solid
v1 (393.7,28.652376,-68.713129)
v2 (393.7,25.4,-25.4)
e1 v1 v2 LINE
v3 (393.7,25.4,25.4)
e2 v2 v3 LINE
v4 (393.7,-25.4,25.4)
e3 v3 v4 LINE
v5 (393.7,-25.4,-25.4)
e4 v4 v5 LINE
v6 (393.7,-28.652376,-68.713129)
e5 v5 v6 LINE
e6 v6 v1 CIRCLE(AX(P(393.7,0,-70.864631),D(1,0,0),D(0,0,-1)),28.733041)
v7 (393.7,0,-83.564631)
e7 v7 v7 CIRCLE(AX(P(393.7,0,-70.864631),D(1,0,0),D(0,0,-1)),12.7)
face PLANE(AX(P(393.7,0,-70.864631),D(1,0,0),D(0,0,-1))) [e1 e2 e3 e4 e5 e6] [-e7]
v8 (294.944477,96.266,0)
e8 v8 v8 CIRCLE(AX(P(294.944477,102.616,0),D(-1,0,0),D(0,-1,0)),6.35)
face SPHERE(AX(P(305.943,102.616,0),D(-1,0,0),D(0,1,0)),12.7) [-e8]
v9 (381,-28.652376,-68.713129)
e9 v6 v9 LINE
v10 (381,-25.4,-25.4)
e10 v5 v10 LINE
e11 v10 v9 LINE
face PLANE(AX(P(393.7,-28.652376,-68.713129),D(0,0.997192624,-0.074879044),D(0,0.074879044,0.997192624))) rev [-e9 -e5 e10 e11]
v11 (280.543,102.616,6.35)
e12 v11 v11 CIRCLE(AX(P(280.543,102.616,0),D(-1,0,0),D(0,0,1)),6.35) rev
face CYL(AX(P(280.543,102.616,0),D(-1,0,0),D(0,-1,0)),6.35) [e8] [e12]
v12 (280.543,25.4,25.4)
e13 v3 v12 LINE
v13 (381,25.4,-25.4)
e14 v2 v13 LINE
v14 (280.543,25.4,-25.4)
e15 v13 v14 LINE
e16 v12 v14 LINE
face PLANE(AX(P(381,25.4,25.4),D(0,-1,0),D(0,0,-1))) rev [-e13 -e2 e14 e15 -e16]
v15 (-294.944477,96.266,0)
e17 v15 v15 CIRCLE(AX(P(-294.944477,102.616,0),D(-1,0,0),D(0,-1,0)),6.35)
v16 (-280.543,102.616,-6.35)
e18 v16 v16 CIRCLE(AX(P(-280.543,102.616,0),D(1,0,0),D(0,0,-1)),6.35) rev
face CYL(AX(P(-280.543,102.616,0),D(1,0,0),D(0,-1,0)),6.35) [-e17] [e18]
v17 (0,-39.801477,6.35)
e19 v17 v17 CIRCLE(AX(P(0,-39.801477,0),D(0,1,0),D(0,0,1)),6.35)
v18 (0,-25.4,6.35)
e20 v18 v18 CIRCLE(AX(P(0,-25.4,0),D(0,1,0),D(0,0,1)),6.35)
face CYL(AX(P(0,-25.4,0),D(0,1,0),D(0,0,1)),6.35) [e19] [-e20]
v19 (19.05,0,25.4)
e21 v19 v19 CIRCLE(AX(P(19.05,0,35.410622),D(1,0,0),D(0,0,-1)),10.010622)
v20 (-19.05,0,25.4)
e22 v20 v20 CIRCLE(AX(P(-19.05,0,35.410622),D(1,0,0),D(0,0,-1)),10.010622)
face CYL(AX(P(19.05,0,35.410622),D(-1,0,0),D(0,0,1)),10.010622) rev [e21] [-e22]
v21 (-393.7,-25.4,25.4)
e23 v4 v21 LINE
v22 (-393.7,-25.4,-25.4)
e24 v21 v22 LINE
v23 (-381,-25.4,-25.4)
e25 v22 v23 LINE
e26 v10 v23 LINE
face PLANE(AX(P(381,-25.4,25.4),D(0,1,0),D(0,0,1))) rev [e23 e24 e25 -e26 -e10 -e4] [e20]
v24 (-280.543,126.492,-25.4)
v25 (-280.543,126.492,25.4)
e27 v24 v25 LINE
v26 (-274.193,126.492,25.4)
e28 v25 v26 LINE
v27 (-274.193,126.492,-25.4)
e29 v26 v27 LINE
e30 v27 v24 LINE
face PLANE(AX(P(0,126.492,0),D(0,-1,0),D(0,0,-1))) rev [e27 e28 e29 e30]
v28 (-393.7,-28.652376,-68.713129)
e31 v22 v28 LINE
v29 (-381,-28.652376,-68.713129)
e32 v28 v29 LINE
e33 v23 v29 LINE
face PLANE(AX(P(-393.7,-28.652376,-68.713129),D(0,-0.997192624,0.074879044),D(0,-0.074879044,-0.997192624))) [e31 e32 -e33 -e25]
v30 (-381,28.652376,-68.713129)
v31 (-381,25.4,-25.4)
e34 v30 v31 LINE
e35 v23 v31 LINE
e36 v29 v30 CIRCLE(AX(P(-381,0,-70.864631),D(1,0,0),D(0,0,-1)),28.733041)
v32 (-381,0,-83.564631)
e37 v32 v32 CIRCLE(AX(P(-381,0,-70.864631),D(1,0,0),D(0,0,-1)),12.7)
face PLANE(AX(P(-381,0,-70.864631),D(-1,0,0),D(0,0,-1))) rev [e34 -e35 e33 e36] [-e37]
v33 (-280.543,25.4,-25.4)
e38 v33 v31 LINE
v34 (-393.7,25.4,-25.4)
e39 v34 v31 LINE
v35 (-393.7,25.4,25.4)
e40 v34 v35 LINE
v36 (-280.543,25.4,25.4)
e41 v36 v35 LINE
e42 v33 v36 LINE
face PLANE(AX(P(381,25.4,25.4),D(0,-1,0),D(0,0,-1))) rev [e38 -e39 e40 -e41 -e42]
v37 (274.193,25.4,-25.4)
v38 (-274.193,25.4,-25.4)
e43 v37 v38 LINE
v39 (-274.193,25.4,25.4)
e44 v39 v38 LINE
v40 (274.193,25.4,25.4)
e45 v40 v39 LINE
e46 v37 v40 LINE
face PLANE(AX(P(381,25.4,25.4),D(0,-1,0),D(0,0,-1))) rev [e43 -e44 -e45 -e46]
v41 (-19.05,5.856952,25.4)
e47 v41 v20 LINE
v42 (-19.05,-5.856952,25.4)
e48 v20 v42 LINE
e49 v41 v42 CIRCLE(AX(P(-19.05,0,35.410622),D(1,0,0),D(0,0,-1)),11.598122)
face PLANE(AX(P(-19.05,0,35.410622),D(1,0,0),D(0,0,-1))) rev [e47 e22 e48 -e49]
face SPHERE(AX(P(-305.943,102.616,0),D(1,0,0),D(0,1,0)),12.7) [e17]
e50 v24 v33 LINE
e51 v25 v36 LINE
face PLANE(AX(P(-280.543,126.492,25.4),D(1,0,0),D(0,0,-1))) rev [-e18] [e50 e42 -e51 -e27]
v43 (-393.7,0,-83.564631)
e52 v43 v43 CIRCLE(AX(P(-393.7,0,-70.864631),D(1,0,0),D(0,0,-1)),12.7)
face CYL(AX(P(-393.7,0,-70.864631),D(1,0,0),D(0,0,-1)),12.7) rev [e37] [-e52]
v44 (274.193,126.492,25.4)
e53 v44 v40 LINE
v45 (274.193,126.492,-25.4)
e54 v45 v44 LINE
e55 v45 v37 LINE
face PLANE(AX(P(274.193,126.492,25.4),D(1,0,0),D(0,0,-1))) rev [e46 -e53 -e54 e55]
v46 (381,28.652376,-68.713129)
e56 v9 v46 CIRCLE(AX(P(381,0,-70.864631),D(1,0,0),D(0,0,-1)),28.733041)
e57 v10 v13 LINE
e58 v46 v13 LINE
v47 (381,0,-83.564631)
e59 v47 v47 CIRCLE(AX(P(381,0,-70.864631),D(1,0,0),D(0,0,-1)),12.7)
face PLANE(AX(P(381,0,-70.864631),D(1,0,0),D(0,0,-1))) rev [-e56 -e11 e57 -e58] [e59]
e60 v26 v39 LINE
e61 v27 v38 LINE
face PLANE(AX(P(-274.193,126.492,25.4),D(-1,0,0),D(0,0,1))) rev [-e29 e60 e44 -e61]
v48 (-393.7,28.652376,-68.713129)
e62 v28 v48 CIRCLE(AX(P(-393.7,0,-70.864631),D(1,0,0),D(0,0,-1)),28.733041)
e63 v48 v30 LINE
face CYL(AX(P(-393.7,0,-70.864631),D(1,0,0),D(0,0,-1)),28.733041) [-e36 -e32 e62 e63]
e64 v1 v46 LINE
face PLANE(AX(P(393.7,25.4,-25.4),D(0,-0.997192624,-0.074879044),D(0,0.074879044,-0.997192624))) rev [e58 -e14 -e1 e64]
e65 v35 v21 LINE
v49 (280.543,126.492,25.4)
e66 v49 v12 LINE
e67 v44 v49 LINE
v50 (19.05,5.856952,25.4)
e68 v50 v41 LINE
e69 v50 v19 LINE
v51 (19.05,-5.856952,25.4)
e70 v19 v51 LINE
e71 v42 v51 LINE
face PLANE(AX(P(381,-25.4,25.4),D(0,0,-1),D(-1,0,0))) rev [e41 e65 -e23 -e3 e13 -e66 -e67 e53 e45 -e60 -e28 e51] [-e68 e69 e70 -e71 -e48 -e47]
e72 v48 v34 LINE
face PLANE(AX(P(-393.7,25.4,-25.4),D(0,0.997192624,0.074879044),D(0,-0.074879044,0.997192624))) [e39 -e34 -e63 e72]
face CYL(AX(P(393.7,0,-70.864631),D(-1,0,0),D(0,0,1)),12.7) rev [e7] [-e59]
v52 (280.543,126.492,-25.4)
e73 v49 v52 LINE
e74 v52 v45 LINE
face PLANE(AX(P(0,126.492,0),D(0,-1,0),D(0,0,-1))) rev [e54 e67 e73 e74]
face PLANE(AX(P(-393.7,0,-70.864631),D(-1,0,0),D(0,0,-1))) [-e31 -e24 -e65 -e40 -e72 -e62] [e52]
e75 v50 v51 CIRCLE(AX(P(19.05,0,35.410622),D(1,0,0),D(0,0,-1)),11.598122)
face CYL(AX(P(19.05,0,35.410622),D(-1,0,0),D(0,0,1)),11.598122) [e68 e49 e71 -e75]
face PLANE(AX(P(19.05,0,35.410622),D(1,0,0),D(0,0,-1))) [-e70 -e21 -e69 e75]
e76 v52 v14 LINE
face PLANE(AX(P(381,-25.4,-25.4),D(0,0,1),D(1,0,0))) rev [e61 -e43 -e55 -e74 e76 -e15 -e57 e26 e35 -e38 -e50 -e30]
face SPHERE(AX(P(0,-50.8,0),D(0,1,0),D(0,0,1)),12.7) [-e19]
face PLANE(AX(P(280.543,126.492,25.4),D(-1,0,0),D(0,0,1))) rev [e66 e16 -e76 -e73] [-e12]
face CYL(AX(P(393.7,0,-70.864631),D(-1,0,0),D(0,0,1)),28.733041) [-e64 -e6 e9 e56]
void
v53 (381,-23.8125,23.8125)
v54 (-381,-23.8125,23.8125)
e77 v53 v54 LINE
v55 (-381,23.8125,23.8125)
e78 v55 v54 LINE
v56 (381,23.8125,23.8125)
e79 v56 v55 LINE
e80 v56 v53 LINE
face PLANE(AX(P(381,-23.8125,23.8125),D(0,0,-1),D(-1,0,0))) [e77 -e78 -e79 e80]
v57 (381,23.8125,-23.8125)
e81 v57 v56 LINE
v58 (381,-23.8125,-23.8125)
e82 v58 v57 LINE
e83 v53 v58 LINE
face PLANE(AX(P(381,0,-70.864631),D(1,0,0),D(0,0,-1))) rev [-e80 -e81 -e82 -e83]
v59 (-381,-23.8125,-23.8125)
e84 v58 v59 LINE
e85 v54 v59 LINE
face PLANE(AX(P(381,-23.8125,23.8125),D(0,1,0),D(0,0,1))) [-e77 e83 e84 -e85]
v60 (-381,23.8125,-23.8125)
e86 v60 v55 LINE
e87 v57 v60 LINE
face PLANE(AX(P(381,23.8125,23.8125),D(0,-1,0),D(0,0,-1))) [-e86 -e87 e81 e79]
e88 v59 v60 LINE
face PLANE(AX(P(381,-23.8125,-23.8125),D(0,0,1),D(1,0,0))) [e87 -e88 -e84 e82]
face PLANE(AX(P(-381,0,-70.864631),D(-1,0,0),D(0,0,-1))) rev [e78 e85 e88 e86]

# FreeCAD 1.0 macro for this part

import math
import FreeCAD as App
import Part
import Sketcher
from FreeCAD import Vector
Q = App.Units.Quantity

doc = App.newDocument("Part")
params = doc.addObject("Spreadsheet::Sheet", "Params")
for row, (alias, value) in enumerate([
    ("sketch1_width", "2 in"),
    ("sketch1_width2", "1.875 in"),
    ("pad1_length", "30 in"),
    ("pad2_length", "1.5 in"),
    ("sketch3_height", "2 in"),
    ("sketch3_width", "0.25 in"),
    ("pad3_length", "3.98 in"),
    ("sketch4_radius", "0.5 in"),
    ("sketch4_width", "1.5 in"),
    ("sketch4_height", "0.25 in"),
    ("revolution_angle", "360 deg"),
    ("sketch5_radius", "0.5 in"),
    ("sketch5_width", "1.5 in"),
    ("sketch5_height", "0.25 in"),
    ("revolution2_angle", "360 deg"),
    ("sketch6_diameter", "1 in"),
    ("sketch6_width", "2 in"),
    ("pad4_length", "0.5 in"),
], start=1):
    params.set(f"A{row}", alias)
    params.set(f"B{row}", "=" + value)
    params.setAlias(f"B{row}", alias)

body = doc.addObject("PartDesign::Body", "Body")

# Sketch on YZ plane
sketch1 = body.newObject("Sketcher::SketchObject", "Sketch")
sketch1.AttachmentSupport = (doc.getObject("YZ_Plane"), [""])
sketch1.MapMode = "FlatFace"
sketch1.addGeometry(Part.LineSegment(Vector(25, 25, 0), Vector(-25, 25, 0)), False)
sketch1.addGeometry(Part.LineSegment(Vector(-25, 25, 0), Vector(-25, -25, 0)), False)
sketch1.addGeometry(Part.LineSegment(Vector(-25, -25, 0), Vector(25, -25, 0)), False)
sketch1.addGeometry(Part.LineSegment(Vector(25, -25, 0), Vector(25, 25, 0)), False)
sketch1.addGeometry(Part.LineSegment(Vector(-24, -24, 0), Vector(-24, 24, 0)), False)
sketch1.addGeometry(Part.LineSegment(Vector(-24, 24, 0), Vector(24, 24, 0)), False)
sketch1.addGeometry(Part.LineSegment(Vector(24, 24, 0), Vector(24, -24, 0)), False)
sketch1.addGeometry(Part.LineSegment(Vector(24, -24, 0), Vector(-24, -24, 0)), False)
sketch1.addConstraint(Sketcher.Constraint("Coincident", 0, 2, 1, 1))
sketch1.addConstraint(Sketcher.Constraint("Coincident", 1, 2, 2, 1))
sketch1.addConstraint(Sketcher.Constraint("Coincident", 2, 2, 3, 1))
sketch1.addConstraint(Sketcher.Constraint("Coincident", 3, 2, 0, 1))
sketch1.addConstraint(Sketcher.Constraint("Coincident", 4, 2, 5, 1))
sketch1.addConstraint(Sketcher.Constraint("Coincident", 5, 2, 6, 1))
sketch1.addConstraint(Sketcher.Constraint("Coincident", 6, 2, 7, 1))
sketch1.addConstraint(Sketcher.Constraint("Coincident", 7, 2, 4, 1))
sketch1.addConstraint(Sketcher.Constraint("Horizontal", 0))
sketch1.addConstraint(Sketcher.Constraint("Vertical", 1))
sketch1.addConstraint(Sketcher.Constraint("Horizontal", 2))
sketch1.addConstraint(Sketcher.Constraint("Vertical", 3))
sketch1.addConstraint(Sketcher.Constraint("Vertical", 4))
sketch1.addConstraint(Sketcher.Constraint("Horizontal", 5))
sketch1.addConstraint(Sketcher.Constraint("Vertical", 6))
sketch1.addConstraint(Sketcher.Constraint("Horizontal", 7))
sketch1.addConstraint(Sketcher.Constraint("Symmetric", 0, 2, 2, 2, -1, 1))
sketch1.addConstraint(Sketcher.Constraint("Symmetric", 4, 2, 6, 2, -1, 1))
sketch1.addConstraint(Sketcher.Constraint("Equal", 2, 1))
sketch1.addConstraint(Sketcher.Constraint("Equal", 7, 4))
sketch1.addConstraint(Sketcher.Constraint("DistanceX", 0, 2, 0, 1, Q("2 in")))
sketch1.addConstraint(Sketcher.Constraint("DistanceX", 5, 1, 5, 2, Q("1.875 in")))
sketch1.setExpression("Constraints[20]", "Params.sketch1_width")
sketch1.setExpression("Constraints[21]", "Params.sketch1_width2")
pad1 = body.newObject("PartDesign::Pad", "Pad")
pad1.Profile = sketch1
pad1.setExpression("Length", "Params.pad1_length")
pad1.Midplane = True

# Sketch on YZ plane
sketch2 = body.newObject("Sketcher::SketchObject", "Sketch001")
sketch2.AttachmentSupport = (doc.getObject("YZ_Plane"), [""])
sketch2.MapMode = "FlatFace"
sketch2.addGeometry(Part.Circle(Vector(0, 35, 0), Vector(0, 0, 1), 12), False)
sketch2.addGeometry(Part.Circle(Vector(0, 35, 0), Vector(0, 0, 1), 10), False)
sketch2.addConstraint(Sketcher.Constraint("Coincident", 1, 3, 0, 3))
sketch2.addConstraint(Sketcher.Constraint("PointOnObject", 0, 3, -2))
sketch2.addConstraint(Sketcher.Constraint("Diameter", 0, 23.196244))
sketch2.addConstraint(Sketcher.Constraint("Diameter", 1, 20.021244))
sketch2.addConstraint(Sketcher.Constraint("DistanceY", -1, 1, 0, 3, 35.410622))
pad2 = body.newObject("PartDesign::Pad", "Pad001")
pad2.Profile = sketch2
pad2.setExpression("Length", "Params.pad2_length")
pad2.Midplane = True

# Sketch on XZ plane
sketch3 = body.newObject("Sketcher::SketchObject", "Sketch002")
sketch3.AttachmentSupport = (doc.getObject("XZ_Plane"), [""])
sketch3.MapMode = "FlatFace"
sketch3.AttachmentOffset = App.Placement(Vector(0, 0, -1 * 25.4), App.Rotation())
sketch3.addGeometry(Part.LineSegment(Vector(-281, -25, 0), Vector(-281, 25, 0)), False)
sketch3.addGeometry(Part.LineSegment(Vector(-281, 25, 0), Vector(-274, 25, 0)), False)
sketch3.addGeometry(Part.LineSegment(Vector(-274, 25, 0), Vector(-274, -25, 0)), False)
sketch3.addGeometry(Part.LineSegment(Vector(-274, -25, 0), Vector(-281, -25, 0)), False)
sketch3.addGeometry(Part.LineSegment(Vector(274, -25, 0), Vector(274, 25, 0)), False)
sketch3.addGeometry(Part.LineSegment(Vector(274, 25, 0), Vector(281, 25, 0)), False)
sketch3.addGeometry(Part.LineSegment(Vector(281, 25, 0), Vector(281, -25, 0)), False)
sketch3.addGeometry(Part.LineSegment(Vector(281, -25, 0), Vector(274, -25, 0)), False)
sketch3.addConstraint(Sketcher.Constraint("Coincident", 0, 2, 1, 1))
sketch3.addConstraint(Sketcher.Constraint("Coincident", 1, 2, 2, 1))
sketch3.addConstraint(Sketcher.Constraint("Coincident", 2, 2, 3, 1))
sketch3.addConstraint(Sketcher.Constraint("Coincident", 3, 2, 0, 1))
sketch3.addConstraint(Sketcher.Constraint("Coincident", 4, 2, 5, 1))
sketch3.addConstraint(Sketcher.Constraint("Coincident", 5, 2, 6, 1))
sketch3.addConstraint(Sketcher.Constraint("Coincident", 6, 2, 7, 1))
sketch3.addConstraint(Sketcher.Constraint("Coincident", 7, 2, 4, 1))
sketch3.addConstraint(Sketcher.Constraint("Vertical", 0))
sketch3.addConstraint(Sketcher.Constraint("Horizontal", 1))
sketch3.addConstraint(Sketcher.Constraint("Vertical", 2))
sketch3.addConstraint(Sketcher.Constraint("Horizontal", 3))
sketch3.addConstraint(Sketcher.Constraint("Vertical", 4))
sketch3.addConstraint(Sketcher.Constraint("Horizontal", 5))
sketch3.addConstraint(Sketcher.Constraint("Vertical", 6))
sketch3.addConstraint(Sketcher.Constraint("Horizontal", 7))
sketch3.addConstraint(Sketcher.Constraint("Symmetric", 2, 2, 4, 2, -1, 1))
sketch3.addConstraint(Sketcher.Constraint("Symmetric", 0, 2, 6, 2, -1, 1))
sketch3.addConstraint(Sketcher.Constraint("Horizontal", 1, 2, 4, 2))
sketch3.addConstraint(Sketcher.Constraint("DistanceY", 0, 1, 0, 2, Q("2 in")))
sketch3.addConstraint(Sketcher.Constraint("DistanceX", 1, 1, 1, 2, Q("0.25 in")))
sketch3.addConstraint(Sketcher.Constraint("DistanceX", 1, 2, 4, 2, Q("21.59 in")))
sketch3.setExpression("Constraints[19]", "Params.sketch3_height")
sketch3.setExpression("Constraints[20]", "Params.sketch3_width")
pad3 = body.newObject("PartDesign::Pad", "Pad002")
pad3.Profile = sketch3
pad3.setExpression("Length", "Params.pad3_length")
pad3.Reversed = True

# Sketch on XY plane
sketch4 = body.newObject("Sketcher::SketchObject", "Sketch003")
sketch4.AttachmentSupport = (doc.getObject("XY_Plane"), [""])
sketch4.MapMode = "FlatFace"
sketch4.addGeometry(Part.LineSegment(Vector(295, 109, 0), Vector(281, 109, 0)), False)
sketch4.addGeometry(Part.LineSegment(Vector(281, 109, 0), Vector(281, 103, 0)), False)
sketch4.addGeometry(Part.LineSegment(Vector(281, 103, 0), Vector(319, 103, 0)), False)
sketch4.addGeometry(Part.ArcOfCircle(Part.Circle(Vector(306, 103, 0), Vector(0, 0, 1), 13), math.radians(0), math.radians(150)), False)
sketch4.addGeometry(Part.LineSegment(Vector(281, 103, 0), Vector(319, 103, 0)), True)  # axis
sketch4.addConstraint(Sketcher.Constraint("Coincident", 0, 2, 1, 1))
sketch4.addConstraint(Sketcher.Constraint("Coincident", 1, 2, 2, 1))
sketch4.addConstraint(Sketcher.Constraint("Coincident", 2, 2, 3, 1))
sketch4.addConstraint(Sketcher.Constraint("Coincident", 3, 2, 0, 1))
sketch4.addConstraint(Sketcher.Constraint("Horizontal", 0))
sketch4.addConstraint(Sketcher.Constraint("Vertical", 1))
sketch4.addConstraint(Sketcher.Constraint("Horizontal", 2))
sketch4.addConstraint(Sketcher.Constraint("Horizontal", 4))
sketch4.addConstraint(Sketcher.Constraint("Coincident", 4, 1, 1, 2))
sketch4.addConstraint(Sketcher.Constraint("Horizontal", 3, 3, 1, 2))
sketch4.addConstraint(Sketcher.Constraint("Equal", 2, 4))
sketch4.addConstraint(Sketcher.Constraint("Radius", 3, Q("0.5 in")))
sketch4.addConstraint(Sketcher.Constraint("DistanceX", 2, 1, 2, 2, Q("1.5 in")))
sketch4.addConstraint(Sketcher.Constraint("DistanceY", 1, 2, 1, 1, Q("0.25 in")))
sketch4.addConstraint(Sketcher.Constraint("DistanceY", -1, 1, 3, 3, Q("4.04 in")))
sketch4.addConstraint(Sketcher.Constraint("DistanceX", -1, 1, 3, 3, Q("12.045 in")))
sketch4.setExpression("Constraints[11]", "Params.sketch4_radius")
sketch4.setExpression("Constraints[12]", "Params.sketch4_width")
sketch4.setExpression("Constraints[13]", "Params.sketch4_height")
revolution = body.newObject("PartDesign::Revolution", "Revolution")
revolution.Profile = sketch4
revolution.ReferenceAxis = (sketch4, ["Axis0"])
revolution.setExpression("Angle", "Params.revolution_angle")
doc.recompute()

mirrored = body.newObject("PartDesign::Mirrored", "Mirrored")
mirrored.Originals = [revolution]
mirrored.MirrorPlane = (doc.getObject("YZ_Plane"), [""])
body.Tip = mirrored

# Sketch on YZ plane
sketch5 = body.newObject("Sketcher::SketchObject", "Sketch004")
sketch5.AttachmentSupport = (doc.getObject("YZ_Plane"), [""])
sketch5.MapMode = "FlatFace"
sketch5.addGeometry(Part.LineSegment(Vector(-25, 0, 0), Vector(-25, 6, 0)), False)
sketch5.addGeometry(Part.LineSegment(Vector(-25, 6, 0), Vector(-40, 6, 0)), False)
sketch5.addGeometry(Part.ArcOfCircle(Part.Circle(Vector(-51, 0, 0), Vector(0, 0, 1), 13), math.radians(30), math.radians(180)), False)
sketch5.addGeometry(Part.LineSegment(Vector(-64, 0, 0), Vector(-25, 0, 0)), False)
sketch5.addConstraint(Sketcher.Constraint("Coincident", 0, 2, 1, 1))
sketch5.addConstraint(Sketcher.Constraint("Coincident", 1, 2, 2, 1))
sketch5.addConstraint(Sketcher.Constraint("Coincident", 2, 2, 3, 1))
sketch5.addConstraint(Sketcher.Constraint("Coincident", 3, 2, 0, 1))
sketch5.addConstraint(Sketcher.Constraint("Vertical", 0))
sketch5.addConstraint(Sketcher.Constraint("Horizontal", 1))
sketch5.addConstraint(Sketcher.Constraint("Horizontal", 3))
sketch5.addConstraint(Sketcher.Constraint("PointOnObject", 2, 3, -1))
sketch5.addConstraint(Sketcher.Constraint("PointOnObject", 2, 2, -1))
sketch5.addConstraint(Sketcher.Constraint("Radius", 2, Q("0.5 in")))
sketch5.addConstraint(Sketcher.Constraint("DistanceX", 3, 1, 3, 2, Q("1.5 in")))
sketch5.addConstraint(Sketcher.Constraint("DistanceX", 2, 3, -1, 1, Q("2 in")))
sketch5.addConstraint(Sketcher.Constraint("DistanceY", 0, 1, 0, 2, Q("0.25 in")))
sketch5.setExpression("Constraints[9]", "Params.sketch5_radius")
sketch5.setExpression("Constraints[10]", "Params.sketch5_width")
sketch5.setExpression("Constraints[12]", "Params.sketch5_height")
revolution2 = body.newObject("PartDesign::Revolution", "Revolution001")
revolution2.Profile = sketch5
revolution2.ReferenceAxis = (sketch5, ["H_Axis"])
revolution2.setExpression("Angle", "Params.revolution2_angle")

# Sketch on YZ plane
sketch6 = body.newObject("Sketcher::SketchObject", "Sketch005")
sketch6.AttachmentSupport = (doc.getObject("YZ_Plane"), [""])
sketch6.MapMode = "FlatFace"
sketch6.AttachmentOffset = App.Placement(Vector(0, 0, 15 * 25.4), App.Rotation())
sketch6.addGeometry(Part.LineSegment(Vector(-25, -25, 0), Vector(-29, -69, 0)), False)
sketch6.addGeometry(Part.ArcOfCircle(Part.Circle(Vector(0, -71, 0), Vector(0, 0, 1), 29), math.radians(176), math.radians(364)), False)
sketch6.addGeometry(Part.LineSegment(Vector(29, -69, 0), Vector(25, -25, 0)), False)
sketch6.addGeometry(Part.LineSegment(Vector(25, -25, 0), Vector(25, 25, 0)), False)
sketch6.addGeometry(Part.LineSegment(Vector(25, 25, 0), Vector(-25, 25, 0)), False)
sketch6.addGeometry(Part.LineSegment(Vector(-25, 25, 0), Vector(-25, -25, 0)), False)
sketch6.addGeometry(Part.Circle(Vector(0, -71, 0), Vector(0, 0, 1), 13), False)
sketch6.addConstraint(Sketcher.Constraint("Tangent", 0, 2, 1, 1))
sketch6.addConstraint(Sketcher.Constraint("Tangent", 1, 2, 2, 1))
sketch6.addConstraint(Sketcher.Constraint("Coincident", 2, 2, 3, 1))
sketch6.addConstraint(Sketcher.Constraint("Coincident", 3, 2, 4, 1))
sketch6.addConstraint(Sketcher.Constraint("Coincident", 4, 2, 5, 1))
sketch6.addConstraint(Sketcher.Constraint("Coincident", 5, 2, 0, 1))
sketch6.addConstraint(Sketcher.Constraint("Vertical", 3))
sketch6.addConstraint(Sketcher.Constraint("Horizontal", 4))
sketch6.addConstraint(Sketcher.Constraint("Vertical", 5))
sketch6.addConstraint(Sketcher.Constraint("Coincident", 6, 3, 1, 3))
sketch6.addConstraint(Sketcher.Constraint("Symmetric", 2, 2, 4, 2, -1, 1))
sketch6.addConstraint(Sketcher.Constraint("PointOnObject", 1, 3, -2))
sketch6.addConstraint(Sketcher.Constraint("Horizontal", 2, 2, 5, 2))
sketch6.addConstraint(Sketcher.Constraint("Equal", 4, 3))
sketch6.addConstraint(Sketcher.Constraint("Diameter", 6, Q("1 in")))
sketch6.addConstraint(Sketcher.Constraint("DistanceX", 4, 2, 4, 1, Q("2 in")))
sketch6.addConstraint(Sketcher.Constraint("Radius", 1, 28.733041))
sketch6.addConstraint(Sketcher.Constraint("DistanceY", 1, 3, -1, 1, 70.864631))
sketch6.setExpression("Constraints[14]", "Params.sketch6_diameter")
sketch6.setExpression("Constraints[15]", "Params.sketch6_width")
pad4 = body.newObject("PartDesign::Pad", "Pad003")
pad4.Profile = sketch6
pad4.setExpression("Length", "Params.pad4_length")
doc.recompute()

mirrored2 = body.newObject("PartDesign::Mirrored", "Mirrored001")
mirrored2.Originals = [pad4]
mirrored2.MirrorPlane = (doc.getObject("YZ_Plane"), [""])
body.Tip = mirrored2

doc.recompute()
